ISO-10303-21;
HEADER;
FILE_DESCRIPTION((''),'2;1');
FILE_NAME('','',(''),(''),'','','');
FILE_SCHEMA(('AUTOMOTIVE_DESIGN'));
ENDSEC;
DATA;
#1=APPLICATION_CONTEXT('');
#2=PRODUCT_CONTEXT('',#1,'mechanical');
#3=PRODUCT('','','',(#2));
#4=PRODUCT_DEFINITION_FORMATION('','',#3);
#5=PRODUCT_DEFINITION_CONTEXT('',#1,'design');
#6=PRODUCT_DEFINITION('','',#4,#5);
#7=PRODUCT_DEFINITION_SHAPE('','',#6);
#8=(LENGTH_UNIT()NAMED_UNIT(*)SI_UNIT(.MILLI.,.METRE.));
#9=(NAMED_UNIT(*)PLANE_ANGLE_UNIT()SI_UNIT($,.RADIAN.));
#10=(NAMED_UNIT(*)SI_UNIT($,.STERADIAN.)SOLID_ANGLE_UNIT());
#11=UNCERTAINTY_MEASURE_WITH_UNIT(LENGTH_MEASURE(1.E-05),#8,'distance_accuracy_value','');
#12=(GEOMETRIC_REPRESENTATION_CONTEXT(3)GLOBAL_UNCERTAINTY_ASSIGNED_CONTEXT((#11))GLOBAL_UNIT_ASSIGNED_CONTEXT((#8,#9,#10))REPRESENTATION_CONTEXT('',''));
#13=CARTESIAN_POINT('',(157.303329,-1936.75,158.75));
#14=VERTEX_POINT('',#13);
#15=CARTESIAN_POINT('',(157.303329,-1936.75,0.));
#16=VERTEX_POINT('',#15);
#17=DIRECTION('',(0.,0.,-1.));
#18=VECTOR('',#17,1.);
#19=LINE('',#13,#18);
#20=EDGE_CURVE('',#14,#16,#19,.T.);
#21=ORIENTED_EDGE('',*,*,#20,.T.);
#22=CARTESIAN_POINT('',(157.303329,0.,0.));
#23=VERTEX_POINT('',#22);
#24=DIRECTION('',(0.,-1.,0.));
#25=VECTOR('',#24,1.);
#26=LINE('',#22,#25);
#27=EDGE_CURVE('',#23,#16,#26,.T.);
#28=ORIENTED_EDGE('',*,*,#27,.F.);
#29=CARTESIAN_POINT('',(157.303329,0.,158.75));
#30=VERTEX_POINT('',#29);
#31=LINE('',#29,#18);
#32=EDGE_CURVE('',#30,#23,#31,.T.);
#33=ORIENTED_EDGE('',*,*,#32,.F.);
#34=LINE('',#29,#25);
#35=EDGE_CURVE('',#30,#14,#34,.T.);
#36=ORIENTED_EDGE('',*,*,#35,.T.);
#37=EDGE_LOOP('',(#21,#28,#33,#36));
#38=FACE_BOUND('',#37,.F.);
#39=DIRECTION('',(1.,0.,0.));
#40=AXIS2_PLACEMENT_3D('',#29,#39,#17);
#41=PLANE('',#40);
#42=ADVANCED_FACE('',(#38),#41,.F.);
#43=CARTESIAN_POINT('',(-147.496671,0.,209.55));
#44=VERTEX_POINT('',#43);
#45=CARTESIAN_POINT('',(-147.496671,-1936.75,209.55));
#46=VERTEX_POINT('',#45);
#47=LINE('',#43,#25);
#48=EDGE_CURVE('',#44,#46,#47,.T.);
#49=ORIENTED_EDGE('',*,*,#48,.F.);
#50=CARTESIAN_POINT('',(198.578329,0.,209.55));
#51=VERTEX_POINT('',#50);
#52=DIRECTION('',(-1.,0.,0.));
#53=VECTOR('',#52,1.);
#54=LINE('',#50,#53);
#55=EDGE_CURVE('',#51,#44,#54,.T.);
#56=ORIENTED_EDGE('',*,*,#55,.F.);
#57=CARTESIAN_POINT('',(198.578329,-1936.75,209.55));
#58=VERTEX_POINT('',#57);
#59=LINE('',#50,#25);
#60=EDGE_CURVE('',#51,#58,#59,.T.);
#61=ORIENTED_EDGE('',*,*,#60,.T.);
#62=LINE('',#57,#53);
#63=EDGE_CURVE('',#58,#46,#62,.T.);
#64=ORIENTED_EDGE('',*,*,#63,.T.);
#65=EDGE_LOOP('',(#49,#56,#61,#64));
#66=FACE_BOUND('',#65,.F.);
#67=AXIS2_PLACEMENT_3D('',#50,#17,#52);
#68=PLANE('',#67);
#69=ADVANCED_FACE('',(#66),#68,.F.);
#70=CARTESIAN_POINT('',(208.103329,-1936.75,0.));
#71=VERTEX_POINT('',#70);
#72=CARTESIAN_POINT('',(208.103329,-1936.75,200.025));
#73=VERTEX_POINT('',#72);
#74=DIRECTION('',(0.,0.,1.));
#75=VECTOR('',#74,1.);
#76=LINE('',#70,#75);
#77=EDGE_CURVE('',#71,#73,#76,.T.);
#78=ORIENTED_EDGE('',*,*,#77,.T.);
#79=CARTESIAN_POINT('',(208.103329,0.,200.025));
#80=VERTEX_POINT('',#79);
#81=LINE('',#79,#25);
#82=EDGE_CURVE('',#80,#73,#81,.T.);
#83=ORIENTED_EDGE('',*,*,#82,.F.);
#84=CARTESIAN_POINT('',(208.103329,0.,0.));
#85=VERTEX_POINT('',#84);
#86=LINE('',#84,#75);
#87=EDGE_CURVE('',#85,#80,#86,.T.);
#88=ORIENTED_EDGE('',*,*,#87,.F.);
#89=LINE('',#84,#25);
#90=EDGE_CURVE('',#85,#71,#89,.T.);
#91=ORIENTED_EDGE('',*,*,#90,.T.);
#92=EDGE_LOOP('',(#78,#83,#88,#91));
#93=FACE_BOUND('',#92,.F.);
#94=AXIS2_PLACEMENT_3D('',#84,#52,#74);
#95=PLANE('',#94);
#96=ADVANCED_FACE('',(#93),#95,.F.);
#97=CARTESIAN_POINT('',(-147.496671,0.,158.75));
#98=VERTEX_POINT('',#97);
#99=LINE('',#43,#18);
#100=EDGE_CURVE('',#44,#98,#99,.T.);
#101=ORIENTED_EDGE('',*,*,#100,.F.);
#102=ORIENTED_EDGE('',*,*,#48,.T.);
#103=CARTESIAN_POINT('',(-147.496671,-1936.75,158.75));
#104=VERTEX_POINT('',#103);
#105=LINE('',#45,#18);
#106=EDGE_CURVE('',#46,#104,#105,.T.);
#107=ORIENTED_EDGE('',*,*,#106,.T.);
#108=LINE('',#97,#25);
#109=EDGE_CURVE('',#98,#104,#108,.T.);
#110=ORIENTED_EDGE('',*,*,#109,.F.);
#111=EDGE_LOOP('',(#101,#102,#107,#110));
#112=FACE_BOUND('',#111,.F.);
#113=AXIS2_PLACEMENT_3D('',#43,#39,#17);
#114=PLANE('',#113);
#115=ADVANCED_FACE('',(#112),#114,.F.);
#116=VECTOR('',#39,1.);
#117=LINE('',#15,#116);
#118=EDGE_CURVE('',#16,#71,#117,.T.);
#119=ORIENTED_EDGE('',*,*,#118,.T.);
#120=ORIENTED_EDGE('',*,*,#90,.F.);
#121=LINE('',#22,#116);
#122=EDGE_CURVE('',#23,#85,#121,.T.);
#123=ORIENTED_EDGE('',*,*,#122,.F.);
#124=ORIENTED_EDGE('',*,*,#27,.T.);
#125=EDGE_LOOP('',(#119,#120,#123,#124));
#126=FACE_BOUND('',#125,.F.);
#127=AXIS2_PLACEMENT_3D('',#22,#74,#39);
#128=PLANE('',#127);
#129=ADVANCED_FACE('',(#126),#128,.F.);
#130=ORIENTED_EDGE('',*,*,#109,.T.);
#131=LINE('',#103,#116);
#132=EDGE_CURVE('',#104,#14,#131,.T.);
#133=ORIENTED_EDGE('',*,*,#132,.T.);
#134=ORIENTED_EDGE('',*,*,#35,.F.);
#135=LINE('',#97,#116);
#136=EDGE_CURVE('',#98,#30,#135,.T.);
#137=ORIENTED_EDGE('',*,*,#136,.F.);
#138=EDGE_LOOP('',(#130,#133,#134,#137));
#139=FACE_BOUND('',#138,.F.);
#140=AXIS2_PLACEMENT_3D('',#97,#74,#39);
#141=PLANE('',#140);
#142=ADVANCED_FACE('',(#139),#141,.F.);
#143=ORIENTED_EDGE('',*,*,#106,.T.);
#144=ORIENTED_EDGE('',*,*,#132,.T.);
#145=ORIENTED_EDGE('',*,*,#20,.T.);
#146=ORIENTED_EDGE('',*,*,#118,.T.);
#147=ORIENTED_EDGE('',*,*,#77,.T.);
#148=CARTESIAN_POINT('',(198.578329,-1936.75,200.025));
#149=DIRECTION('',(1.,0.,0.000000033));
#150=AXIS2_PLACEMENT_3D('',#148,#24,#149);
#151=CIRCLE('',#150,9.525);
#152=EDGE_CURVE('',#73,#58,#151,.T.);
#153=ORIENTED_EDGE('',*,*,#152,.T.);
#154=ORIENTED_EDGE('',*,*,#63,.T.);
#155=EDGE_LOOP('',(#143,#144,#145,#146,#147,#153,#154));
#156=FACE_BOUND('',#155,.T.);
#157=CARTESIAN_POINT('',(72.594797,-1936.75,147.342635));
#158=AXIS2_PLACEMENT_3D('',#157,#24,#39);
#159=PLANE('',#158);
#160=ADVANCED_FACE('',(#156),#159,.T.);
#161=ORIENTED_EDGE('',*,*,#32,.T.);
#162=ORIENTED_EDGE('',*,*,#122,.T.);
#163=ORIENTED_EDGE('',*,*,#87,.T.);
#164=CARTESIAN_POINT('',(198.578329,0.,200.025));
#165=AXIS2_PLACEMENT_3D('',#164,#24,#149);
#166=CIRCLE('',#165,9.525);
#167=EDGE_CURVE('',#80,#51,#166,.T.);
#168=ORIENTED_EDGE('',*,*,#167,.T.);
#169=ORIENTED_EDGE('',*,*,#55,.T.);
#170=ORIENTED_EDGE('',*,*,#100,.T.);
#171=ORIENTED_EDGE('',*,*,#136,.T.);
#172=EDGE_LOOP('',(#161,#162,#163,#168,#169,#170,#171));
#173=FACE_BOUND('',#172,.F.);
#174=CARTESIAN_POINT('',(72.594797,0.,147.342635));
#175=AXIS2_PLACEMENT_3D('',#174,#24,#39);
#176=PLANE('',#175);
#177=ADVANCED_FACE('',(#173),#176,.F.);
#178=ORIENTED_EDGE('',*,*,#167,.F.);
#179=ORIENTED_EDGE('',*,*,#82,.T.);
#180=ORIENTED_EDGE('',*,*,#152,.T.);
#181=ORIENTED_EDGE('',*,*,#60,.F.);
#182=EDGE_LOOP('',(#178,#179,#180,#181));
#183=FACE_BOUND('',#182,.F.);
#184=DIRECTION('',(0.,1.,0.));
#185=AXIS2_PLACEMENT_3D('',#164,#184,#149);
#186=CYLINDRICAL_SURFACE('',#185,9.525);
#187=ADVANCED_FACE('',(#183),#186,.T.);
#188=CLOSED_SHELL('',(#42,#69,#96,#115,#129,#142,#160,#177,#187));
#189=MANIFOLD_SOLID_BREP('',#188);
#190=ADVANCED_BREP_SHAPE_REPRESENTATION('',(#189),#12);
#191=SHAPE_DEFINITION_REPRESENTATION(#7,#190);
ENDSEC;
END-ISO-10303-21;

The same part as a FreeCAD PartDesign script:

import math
import FreeCAD as App
import Part
import Sketcher

V = App.Vector
Q = App.Units.Quantity

doc = App.newDocument("Part")
body = doc.addObject("PartDesign::Body", "Body")

# Sketch on XZ plane
sketch1 = doc.addObject("Sketcher::SketchObject", "Sketch")
body.addObject(sketch1)
sketch1.AttachmentSupport = (doc.XZ_Plane, [""])
sketch1.MapMode = "FlatFace"
sketch1.addGeometry(Part.LineSegment(V(198.578329, 209.55, 0), V(-147.496671, 209.55, 0)), False)
sketch1.addGeometry(Part.LineSegment(V(-147.496671, 209.55, 0), V(-147.496671, 158.75, 0)), False)
sketch1.addGeometry(Part.LineSegment(V(-147.496671, 158.75, 0), V(157.303329, 158.75, 0)), False)
sketch1.addGeometry(Part.LineSegment(V(157.303329, 158.75, 0), V(157.303329, 0, 0)), False)
sketch1.addGeometry(Part.LineSegment(V(157.303329, 0, 0), V(208.103329, 0, 0)), False)
sketch1.addGeometry(Part.LineSegment(V(208.103329, 0, 0), V(208.103329, 200.025, 0)), False)
sketch1.addGeometry(Part.ArcOfCircle(Part.Circle(V(198.578329, 200.025, 0), V(0, 0, 1), 9.525), math.radians(0.000002), math.radians(89.999998)), False)
sketch1.addConstraint(Sketcher.Constraint("Coincident", 0, 2, 1, 1))
sketch1.addConstraint(Sketcher.Constraint("Coincident", 1, 2, 2, 1))
sketch1.addConstraint(Sketcher.Constraint("Coincident", 2, 2, 3, 1))
sketch1.addConstraint(Sketcher.Constraint("Coincident", 3, 2, 4, 1))
sketch1.addConstraint(Sketcher.Constraint("Coincident", 4, 2, 5, 1))
sketch1.addConstraint(Sketcher.Constraint("Tangent", 5, 2, 6, 1))
sketch1.addConstraint(Sketcher.Constraint("Tangent", 6, 2, 0, 1))
sketch1.addConstraint(Sketcher.Constraint("Horizontal", 0))
sketch1.addConstraint(Sketcher.Constraint("Vertical", 1))
sketch1.addConstraint(Sketcher.Constraint("Horizontal", 2))
sketch1.addConstraint(Sketcher.Constraint("Vertical", 3))
sketch1.addConstraint(Sketcher.Constraint("Horizontal", 4))
sketch1.addConstraint(Sketcher.Constraint("Vertical", 5))
sketch1.addConstraint(Sketcher.Constraint("PointOnObject", 3, 2, -1))
sketch1.addConstraint(Sketcher.Constraint("Equal", 4, 1))
sketch1.addConstraint(Sketcher.Constraint("DistanceX", 2, 1, 2, 2, Q("12 in")))
sketch1.addConstraint(Sketcher.Constraint("DistanceX", 4, 1, 4, 2, Q("2 in")))
sketch1.addConstraint(Sketcher.Constraint("Radius", 6, Q("0.375 in")))
sketch1.addConstraint(Sketcher.Constraint("DistanceY", 3, 2, 3, 1, Q("6.25 in")))
sketch1.addConstraint(Sketcher.Constraint("DistanceX", -1, 1, 6, 3, Q("198.578329 mm")))
pad1 = doc.addObject("PartDesign::Pad", "Pad")
body.addObject(pad1)
pad1.Profile = sketch1
pad1.Length = Q("76.25 in")

doc.recompute()
